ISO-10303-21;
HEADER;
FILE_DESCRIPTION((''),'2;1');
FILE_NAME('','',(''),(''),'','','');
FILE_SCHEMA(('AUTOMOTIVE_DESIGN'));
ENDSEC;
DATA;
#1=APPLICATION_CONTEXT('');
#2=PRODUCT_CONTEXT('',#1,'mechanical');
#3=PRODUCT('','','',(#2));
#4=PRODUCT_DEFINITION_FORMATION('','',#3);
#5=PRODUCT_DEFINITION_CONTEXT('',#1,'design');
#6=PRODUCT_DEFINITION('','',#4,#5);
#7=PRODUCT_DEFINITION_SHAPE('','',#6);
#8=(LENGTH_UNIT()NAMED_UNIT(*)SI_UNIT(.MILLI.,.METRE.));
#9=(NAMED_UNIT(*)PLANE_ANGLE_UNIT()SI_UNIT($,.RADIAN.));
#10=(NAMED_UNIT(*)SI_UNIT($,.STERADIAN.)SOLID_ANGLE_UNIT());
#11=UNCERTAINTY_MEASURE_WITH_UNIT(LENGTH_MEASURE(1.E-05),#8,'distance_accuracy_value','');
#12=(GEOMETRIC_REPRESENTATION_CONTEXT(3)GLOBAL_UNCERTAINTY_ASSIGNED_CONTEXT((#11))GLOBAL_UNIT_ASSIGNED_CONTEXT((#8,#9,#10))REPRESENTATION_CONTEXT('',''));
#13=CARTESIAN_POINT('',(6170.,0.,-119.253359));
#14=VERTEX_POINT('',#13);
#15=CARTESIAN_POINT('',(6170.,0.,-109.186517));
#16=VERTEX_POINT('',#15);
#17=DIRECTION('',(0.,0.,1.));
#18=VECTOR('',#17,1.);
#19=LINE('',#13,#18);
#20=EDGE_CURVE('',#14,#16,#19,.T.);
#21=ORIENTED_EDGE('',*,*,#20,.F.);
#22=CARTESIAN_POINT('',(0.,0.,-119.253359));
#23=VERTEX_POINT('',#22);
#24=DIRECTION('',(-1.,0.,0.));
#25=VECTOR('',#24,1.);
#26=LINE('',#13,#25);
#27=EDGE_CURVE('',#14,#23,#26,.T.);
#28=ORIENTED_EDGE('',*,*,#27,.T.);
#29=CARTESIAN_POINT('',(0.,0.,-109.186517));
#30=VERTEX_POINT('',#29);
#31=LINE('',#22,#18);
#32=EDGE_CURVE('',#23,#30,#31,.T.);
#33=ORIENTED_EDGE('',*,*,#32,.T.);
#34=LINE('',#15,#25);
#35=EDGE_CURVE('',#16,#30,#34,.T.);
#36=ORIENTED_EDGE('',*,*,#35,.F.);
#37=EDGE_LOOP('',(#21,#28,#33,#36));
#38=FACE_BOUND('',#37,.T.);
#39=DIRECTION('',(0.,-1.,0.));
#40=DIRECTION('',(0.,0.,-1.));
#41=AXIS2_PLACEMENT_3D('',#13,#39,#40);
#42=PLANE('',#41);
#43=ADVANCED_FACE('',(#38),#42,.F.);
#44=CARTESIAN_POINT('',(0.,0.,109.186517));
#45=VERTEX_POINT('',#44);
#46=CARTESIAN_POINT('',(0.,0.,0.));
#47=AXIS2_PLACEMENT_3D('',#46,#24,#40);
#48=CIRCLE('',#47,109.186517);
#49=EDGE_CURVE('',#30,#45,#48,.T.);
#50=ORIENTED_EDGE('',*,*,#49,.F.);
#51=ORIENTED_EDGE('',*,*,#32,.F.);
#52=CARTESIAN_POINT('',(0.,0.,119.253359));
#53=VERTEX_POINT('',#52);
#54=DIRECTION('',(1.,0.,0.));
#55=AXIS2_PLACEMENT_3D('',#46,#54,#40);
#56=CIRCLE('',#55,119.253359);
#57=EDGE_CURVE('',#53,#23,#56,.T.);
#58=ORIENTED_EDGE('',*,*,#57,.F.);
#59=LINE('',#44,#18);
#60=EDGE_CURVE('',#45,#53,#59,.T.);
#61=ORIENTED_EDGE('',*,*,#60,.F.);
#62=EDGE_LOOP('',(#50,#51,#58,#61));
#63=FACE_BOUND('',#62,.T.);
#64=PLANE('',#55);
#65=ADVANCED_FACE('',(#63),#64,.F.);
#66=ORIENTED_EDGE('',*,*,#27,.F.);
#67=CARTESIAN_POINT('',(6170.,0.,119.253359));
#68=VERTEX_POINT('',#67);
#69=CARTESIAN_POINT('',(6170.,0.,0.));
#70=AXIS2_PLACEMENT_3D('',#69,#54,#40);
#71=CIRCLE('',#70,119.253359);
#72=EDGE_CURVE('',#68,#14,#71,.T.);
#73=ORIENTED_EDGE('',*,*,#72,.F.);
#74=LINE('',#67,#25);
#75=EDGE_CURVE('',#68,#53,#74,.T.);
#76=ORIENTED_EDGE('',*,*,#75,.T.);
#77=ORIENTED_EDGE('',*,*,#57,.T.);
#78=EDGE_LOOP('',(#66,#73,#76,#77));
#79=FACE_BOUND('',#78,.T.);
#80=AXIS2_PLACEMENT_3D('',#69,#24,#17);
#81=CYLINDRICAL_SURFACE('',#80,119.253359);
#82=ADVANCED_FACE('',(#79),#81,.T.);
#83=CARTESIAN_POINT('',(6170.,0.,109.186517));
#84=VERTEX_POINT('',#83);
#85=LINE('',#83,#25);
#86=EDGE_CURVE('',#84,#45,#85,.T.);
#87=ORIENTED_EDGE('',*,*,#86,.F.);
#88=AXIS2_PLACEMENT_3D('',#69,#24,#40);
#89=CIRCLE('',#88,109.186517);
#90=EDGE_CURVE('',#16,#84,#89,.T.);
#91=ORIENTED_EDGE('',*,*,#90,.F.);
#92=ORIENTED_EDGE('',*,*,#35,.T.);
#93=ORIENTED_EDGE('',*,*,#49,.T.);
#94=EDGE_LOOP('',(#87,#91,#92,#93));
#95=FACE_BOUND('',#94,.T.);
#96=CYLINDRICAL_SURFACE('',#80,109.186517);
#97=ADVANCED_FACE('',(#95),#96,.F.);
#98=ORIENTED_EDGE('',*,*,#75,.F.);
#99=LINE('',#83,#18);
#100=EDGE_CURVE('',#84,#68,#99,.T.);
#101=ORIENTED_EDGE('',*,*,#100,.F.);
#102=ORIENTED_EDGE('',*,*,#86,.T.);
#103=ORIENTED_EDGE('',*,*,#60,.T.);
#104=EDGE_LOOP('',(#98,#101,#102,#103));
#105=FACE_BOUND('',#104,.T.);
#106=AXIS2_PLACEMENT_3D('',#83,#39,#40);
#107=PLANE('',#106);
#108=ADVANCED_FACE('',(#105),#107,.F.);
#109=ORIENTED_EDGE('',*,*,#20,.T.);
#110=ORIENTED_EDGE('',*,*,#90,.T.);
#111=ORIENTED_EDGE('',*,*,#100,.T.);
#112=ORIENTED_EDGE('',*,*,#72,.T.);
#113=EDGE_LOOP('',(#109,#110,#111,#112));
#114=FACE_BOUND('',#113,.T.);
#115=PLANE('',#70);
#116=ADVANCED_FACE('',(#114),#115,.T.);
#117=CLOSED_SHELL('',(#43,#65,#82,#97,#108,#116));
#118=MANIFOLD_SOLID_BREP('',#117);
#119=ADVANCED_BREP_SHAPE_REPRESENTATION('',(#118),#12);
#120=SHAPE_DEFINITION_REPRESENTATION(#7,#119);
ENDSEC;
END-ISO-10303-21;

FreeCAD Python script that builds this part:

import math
import FreeCAD as App
import Part
import Sketcher
from FreeCAD import Vector

doc = App.newDocument("Part")
body = doc.addObject("PartDesign::Body", "Body")

# Sketch on YZ plane
sketch1 = body.newObject("Sketcher::SketchObject", "Sketch")
sketch1.AttachmentSupport = (doc.getObject("YZ_Plane"), [""])
sketch1.MapMode = "FlatFace"
sketch1.addGeometry(Part.LineSegment(Vector(0, -119, 0), Vector(0, -109, 0)), False)
sketch1.addGeometry(Part.ArcOfCircle(Part.Circle(Vector(0, 0, 0), Vector(0, 0, 1), 109), math.radians(90), math.radians(270)), False)
sketch1.addGeometry(Part.LineSegment(Vector(0, 109, 0), Vector(0, 119, 0)), False)
sketch1.addGeometry(Part.ArcOfCircle(Part.Circle(Vector(0, 0, 0), Vector(0, 0, 1), 119), math.radians(90), math.radians(270)), False)
sketch1.addConstraint(Sketcher.Constraint("Coincident", 0, 2, 1, 2))
sketch1.addConstraint(Sketcher.Constraint("Coincident", 1, 1, 2, 1))
sketch1.addConstraint(Sketcher.Constraint("Coincident", 2, 2, 3, 1))
sketch1.addConstraint(Sketcher.Constraint("Coincident", 3, 2, 0, 1))
sketch1.addConstraint(Sketcher.Constraint("Vertical", 0))
sketch1.addConstraint(Sketcher.Constraint("Vertical", 2))
sketch1.addConstraint(Sketcher.Constraint("Coincident", 1, 3, -1, 1))
sketch1.addConstraint(Sketcher.Constraint("Coincident", 3, 3, -1, 1))
sketch1.addConstraint(Sketcher.Constraint("PointOnObject", 0, 2, -2))
sketch1.addConstraint(Sketcher.Constraint("PointOnObject", 1, 1, -2))
sketch1.addConstraint(Sketcher.Constraint("Radius", 3, 119.253359))
sketch1.addConstraint(Sketcher.Constraint("Radius", 1, 109.186517))
pad1 = body.newObject("PartDesign::Pad", "Pad")
pad1.Profile = sketch1
pad1.Length = 6170

doc.recompute()
